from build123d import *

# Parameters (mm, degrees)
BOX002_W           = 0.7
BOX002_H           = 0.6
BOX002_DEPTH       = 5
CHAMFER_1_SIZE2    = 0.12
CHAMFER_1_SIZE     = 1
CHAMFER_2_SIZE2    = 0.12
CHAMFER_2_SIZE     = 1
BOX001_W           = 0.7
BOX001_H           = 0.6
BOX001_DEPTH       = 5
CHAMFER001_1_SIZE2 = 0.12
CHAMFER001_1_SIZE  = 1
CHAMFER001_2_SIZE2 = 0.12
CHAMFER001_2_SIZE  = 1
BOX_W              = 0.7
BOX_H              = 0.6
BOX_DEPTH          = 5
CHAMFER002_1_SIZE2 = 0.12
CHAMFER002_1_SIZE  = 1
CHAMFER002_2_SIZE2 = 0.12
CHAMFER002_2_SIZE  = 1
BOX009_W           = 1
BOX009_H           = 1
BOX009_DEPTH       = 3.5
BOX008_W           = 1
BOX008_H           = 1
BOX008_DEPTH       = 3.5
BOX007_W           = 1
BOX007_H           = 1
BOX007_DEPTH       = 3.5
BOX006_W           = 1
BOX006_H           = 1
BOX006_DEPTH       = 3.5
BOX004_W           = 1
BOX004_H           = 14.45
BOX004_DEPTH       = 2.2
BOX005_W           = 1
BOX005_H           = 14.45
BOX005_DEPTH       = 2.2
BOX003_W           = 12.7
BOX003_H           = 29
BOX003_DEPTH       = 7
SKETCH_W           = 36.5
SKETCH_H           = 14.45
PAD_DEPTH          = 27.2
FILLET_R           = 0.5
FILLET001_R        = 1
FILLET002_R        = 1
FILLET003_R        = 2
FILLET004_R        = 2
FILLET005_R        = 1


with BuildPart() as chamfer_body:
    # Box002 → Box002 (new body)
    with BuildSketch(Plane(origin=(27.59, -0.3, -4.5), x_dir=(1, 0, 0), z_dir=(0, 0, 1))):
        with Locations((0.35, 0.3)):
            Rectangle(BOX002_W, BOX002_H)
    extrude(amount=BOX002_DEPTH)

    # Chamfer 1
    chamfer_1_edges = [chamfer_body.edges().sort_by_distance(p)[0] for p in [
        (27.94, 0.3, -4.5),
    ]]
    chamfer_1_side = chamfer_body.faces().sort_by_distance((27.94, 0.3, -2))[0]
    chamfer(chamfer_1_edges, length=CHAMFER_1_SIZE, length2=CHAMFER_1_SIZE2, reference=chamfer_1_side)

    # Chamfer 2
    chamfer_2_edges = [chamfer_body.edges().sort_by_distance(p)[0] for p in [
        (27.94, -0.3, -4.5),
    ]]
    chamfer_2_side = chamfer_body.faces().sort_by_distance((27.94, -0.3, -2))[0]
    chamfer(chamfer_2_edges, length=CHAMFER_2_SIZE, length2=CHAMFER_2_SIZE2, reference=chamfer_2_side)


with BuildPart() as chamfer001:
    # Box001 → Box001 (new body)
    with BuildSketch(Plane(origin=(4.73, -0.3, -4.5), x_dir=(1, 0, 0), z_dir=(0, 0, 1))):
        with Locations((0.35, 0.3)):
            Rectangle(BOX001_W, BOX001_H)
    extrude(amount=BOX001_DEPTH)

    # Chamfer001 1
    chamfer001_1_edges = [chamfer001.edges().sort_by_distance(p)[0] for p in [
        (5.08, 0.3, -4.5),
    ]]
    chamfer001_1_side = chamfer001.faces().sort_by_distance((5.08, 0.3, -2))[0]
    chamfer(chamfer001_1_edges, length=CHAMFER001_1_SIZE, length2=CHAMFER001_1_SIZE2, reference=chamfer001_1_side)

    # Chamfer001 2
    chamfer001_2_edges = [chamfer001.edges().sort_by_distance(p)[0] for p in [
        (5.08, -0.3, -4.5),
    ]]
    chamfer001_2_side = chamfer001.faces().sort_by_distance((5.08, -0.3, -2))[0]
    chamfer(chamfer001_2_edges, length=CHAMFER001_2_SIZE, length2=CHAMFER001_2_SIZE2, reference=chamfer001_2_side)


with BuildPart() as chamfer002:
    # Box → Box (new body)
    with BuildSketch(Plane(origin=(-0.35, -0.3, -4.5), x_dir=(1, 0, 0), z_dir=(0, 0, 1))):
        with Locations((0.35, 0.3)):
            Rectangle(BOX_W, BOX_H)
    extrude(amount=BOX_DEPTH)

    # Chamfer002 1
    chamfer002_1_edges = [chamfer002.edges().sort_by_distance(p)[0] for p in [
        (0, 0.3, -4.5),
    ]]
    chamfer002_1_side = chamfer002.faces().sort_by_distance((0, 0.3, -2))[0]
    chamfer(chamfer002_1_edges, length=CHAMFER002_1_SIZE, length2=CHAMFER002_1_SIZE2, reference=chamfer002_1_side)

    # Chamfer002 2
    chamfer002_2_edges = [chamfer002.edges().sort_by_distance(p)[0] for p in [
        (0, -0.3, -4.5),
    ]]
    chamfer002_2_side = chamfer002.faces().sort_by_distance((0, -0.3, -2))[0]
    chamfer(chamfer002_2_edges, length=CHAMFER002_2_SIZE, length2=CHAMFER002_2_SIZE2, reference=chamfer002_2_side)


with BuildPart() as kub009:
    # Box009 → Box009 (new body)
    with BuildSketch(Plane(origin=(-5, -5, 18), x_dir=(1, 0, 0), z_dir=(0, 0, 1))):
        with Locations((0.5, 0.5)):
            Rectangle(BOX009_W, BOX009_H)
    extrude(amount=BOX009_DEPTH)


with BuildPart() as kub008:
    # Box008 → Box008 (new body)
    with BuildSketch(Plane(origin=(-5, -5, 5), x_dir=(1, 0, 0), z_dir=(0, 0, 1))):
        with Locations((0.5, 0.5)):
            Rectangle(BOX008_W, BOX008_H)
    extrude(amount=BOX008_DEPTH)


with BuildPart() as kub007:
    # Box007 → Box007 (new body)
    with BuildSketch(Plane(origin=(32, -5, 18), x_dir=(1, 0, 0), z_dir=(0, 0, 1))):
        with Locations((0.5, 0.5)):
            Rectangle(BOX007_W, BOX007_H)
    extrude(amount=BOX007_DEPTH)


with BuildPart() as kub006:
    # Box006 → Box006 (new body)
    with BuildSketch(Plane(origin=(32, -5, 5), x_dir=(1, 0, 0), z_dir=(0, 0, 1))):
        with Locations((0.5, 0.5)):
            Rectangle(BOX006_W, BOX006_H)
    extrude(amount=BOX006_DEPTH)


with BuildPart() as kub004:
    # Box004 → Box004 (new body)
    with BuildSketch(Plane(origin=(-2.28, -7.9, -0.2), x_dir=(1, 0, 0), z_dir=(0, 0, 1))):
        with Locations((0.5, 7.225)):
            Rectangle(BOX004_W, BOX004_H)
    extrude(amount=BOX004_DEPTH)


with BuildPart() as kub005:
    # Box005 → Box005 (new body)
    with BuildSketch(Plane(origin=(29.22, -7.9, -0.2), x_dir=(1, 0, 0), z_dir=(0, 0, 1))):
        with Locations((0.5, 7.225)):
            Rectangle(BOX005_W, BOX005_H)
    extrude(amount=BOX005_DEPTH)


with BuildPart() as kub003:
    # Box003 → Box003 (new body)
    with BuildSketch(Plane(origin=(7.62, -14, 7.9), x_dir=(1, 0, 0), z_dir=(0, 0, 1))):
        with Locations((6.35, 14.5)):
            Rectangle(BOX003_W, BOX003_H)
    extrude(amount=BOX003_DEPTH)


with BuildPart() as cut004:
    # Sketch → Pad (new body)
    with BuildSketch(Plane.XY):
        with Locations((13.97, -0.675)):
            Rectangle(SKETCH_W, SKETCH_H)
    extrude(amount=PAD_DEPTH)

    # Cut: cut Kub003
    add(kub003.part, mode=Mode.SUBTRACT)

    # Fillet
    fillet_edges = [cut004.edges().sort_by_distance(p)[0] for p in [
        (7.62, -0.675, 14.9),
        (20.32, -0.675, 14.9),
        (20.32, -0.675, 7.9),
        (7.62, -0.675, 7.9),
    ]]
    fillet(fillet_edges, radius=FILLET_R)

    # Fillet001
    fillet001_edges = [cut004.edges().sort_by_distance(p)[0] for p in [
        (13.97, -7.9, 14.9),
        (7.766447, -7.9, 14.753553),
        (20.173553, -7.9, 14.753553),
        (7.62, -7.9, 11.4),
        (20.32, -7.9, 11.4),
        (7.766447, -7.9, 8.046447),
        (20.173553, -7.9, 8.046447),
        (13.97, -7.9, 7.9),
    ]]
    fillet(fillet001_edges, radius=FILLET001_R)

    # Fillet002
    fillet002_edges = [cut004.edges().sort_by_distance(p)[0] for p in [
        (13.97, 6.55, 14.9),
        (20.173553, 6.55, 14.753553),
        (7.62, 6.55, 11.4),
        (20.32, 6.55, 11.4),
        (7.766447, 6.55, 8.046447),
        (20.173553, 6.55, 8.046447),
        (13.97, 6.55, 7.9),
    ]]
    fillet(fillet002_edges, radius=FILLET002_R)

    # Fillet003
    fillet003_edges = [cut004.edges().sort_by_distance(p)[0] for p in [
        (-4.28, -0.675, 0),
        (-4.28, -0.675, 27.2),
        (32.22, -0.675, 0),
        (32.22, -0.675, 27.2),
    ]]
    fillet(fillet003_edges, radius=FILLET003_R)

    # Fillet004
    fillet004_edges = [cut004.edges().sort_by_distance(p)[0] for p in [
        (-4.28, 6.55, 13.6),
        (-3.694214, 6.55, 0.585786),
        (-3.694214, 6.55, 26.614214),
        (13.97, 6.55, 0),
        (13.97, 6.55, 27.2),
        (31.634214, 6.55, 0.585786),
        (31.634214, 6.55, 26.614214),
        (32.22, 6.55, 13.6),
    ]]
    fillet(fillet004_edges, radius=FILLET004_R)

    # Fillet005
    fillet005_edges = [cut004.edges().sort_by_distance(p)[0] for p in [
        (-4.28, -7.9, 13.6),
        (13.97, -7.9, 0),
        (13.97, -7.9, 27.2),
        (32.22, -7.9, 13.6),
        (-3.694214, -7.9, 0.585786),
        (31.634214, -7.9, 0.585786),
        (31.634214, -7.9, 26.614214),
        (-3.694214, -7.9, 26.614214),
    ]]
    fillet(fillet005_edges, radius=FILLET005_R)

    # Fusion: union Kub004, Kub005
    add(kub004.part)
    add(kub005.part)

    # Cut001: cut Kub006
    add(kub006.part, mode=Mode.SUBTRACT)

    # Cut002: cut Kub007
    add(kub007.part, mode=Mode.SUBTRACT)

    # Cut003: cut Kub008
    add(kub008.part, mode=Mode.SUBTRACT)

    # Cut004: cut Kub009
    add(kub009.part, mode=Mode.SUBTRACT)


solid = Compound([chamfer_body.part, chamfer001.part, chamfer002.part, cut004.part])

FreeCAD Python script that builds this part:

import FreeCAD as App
import Part
import Sketcher

V = App.Vector


def edges_at(feature, points):
    """Names of the edges that pass closest to the given points."""
    edges = feature.Shape.Edges
    near = lambda p: min(range(len(edges)), key=lambda i: edges[i].distToShape(Part.Vertex(*p))[0])
    return sorted({f"Edge{near(p) + 1}" for p in points})


def add_polygon(sketch, points):
    """Adds a closed chain of lines whose ends are joined by coincident constraints."""
    first, n = sketch.GeometryCount, len(points)
    for a, b in zip(points, points[1:] + points[:1]):
        sketch.addGeometry(Part.LineSegment(App.Vector(*a, 0), App.Vector(*b, 0)), False)
    for i in range(n):
        sketch.addConstraint(Sketcher.Constraint("Coincident", first + i, 2, first + (i + 1) % n, 1))

doc = App.newDocument("Part")
params = doc.addObject("Spreadsheet::Sheet", "Params")
for row, (alias, value) in enumerate([
    ("sketch1_width", "0.7 mm"),
    ("sketch1_height", "0.6 mm"),
    ("pad1_length", "5 mm"),
    ("chamfer_size", "1 mm"),
    ("chamfer_size2", "0.12 mm"),
    ("chamfer2_size", "1 mm"),
    ("chamfer2_size2", "0.12 mm"),
    ("sketch2_width", "0.7 mm"),
    ("sketch2_height", "0.6 mm"),
    ("pad2_length", "5 mm"),
    ("chamfer3_size", "1 mm"),
    ("chamfer3_size2", "0.12 mm"),
    ("chamfer4_size", "1 mm"),
    ("chamfer4_size2", "0.12 mm"),
    ("sketch3_width", "0.7 mm"),
    ("sketch3_height", "0.6 mm"),
    ("pad3_length", "5 mm"),
    ("chamfer5_size", "1 mm"),
    ("chamfer5_size2", "0.12 mm"),
    ("chamfer6_size", "1 mm"),
    ("chamfer6_size2", "0.12 mm"),
    ("sketch4_width", "1 mm"),
    ("pad4_length", "3.5 mm"),
    ("sketch5_width", "1 mm"),
    ("pad5_length", "3.5 mm"),
    ("sketch6_width", "1 mm"),
    ("pad6_length", "3.5 mm"),
    ("sketch7_width", "1 mm"),
    ("pad7_length", "3.5 mm"),
    ("sketch8_width", "1 mm"),
    ("sketch8_height", "14.45 mm"),
    ("pad8_length", "2.2 mm"),
    ("sketch9_width", "1 mm"),
    ("sketch9_height", "14.45 mm"),
    ("pad9_length", "2.2 mm"),
    ("sketch10_height", "29 mm"),
    ("sketch10_width", "12.7 mm"),
    ("pad10_length", "7 mm"),
    ("sketch11_width", "36.5 mm"),
    ("sketch11_height", "14.45 mm"),
    ("pad11_length", "27.2 mm"),
    ("fillet_radius", "0.5 mm"),
    ("fillet2_radius", "1 mm"),
    ("fillet3_radius", "1 mm"),
    ("fillet4_radius", "2 mm"),
    ("fillet5_radius", "2 mm"),
    ("fillet6_radius", "1 mm"),
], start=1):
    params.set(f"A{row}", alias)
    params.set(f"B{row}", "=" + value)
    params.setAlias(f"B{row}", alias)

body = doc.addObject("PartDesign::Body", "Body")

# Sketch on XY plane
sketch1 = doc.addObject("Sketcher::SketchObject", "Sketch")
body.addObject(sketch1)
sketch1.AttachmentSupport = (doc.XY_Plane, [""])
sketch1.MapMode = "FlatFace"
sketch1.AttachmentOffset = App.Placement(V(0, 0, -4.5), App.Rotation())
add_polygon(sketch1, [(27.59, 0.3), (27.59, -0.3), (28.29, -0.3), (28.29, 0.3)])  # lines 0-3
sketch1.addConstraint([
    Sketcher.Constraint("Vertical", 0),
    Sketcher.Constraint("Horizontal", 1),
    Sketcher.Constraint("Vertical", 2),
    Sketcher.Constraint("Horizontal", 3),
    Sketcher.Constraint("DistanceX", 1, 1, 1, 2, 0.7),
    Sketcher.Constraint("DistanceY", 0, 2, 0, 1, 0.6),
    Sketcher.Constraint("DistanceY", 0, 2, -1, 1, 0.3),
    Sketcher.Constraint("DistanceX", -1, 1, 0, 2, 27.59),
])
sketch1.setExpression("Constraints[8]", "Params.sketch1_width")
sketch1.setExpression("Constraints[9]", "Params.sketch1_height")
pad1 = doc.addObject("PartDesign::Pad", "Pad")
body.addObject(pad1)
pad1.Profile = sketch1
pad1.setExpression("Length", "Params.pad1_length")
doc.recompute()

chamfer = doc.addObject("PartDesign::Chamfer", "Chamfer")
body.addObject(chamfer)
chamfer.Base = (pad1, edges_at(pad1, [(27.94, 0.3, -4.5)]))
chamfer.ChamferType = "Two distances"
chamfer.setExpression("Size", "Params.chamfer_size")
chamfer.setExpression("Size2", "Params.chamfer_size2")
doc.recompute()

chamfer2 = doc.addObject("PartDesign::Chamfer", "Chamfer001")
body.addObject(chamfer2)
chamfer2.Base = (chamfer, edges_at(chamfer, [(27.94, -0.3, -4.5)]))
chamfer2.ChamferType = "Two distances"
chamfer2.setExpression("Size", "Params.chamfer2_size")
chamfer2.setExpression("Size2", "Params.chamfer2_size2")
chamfer2.FlipDirection = True
body2 = doc.addObject("PartDesign::Body", "Body001")

# Sketch on XY plane
sketch2 = doc.addObject("Sketcher::SketchObject", "Sketch001")
body2.addObject(sketch2)
sketch2.AttachmentSupport = (doc.getObject("XY_Plane001"), [""])
sketch2.MapMode = "FlatFace"
sketch2.AttachmentOffset = App.Placement(V(0, 0, -4.5), App.Rotation())
add_polygon(sketch2, [(4.73, 0.3), (4.73, -0.3), (5.43, -0.3), (5.43, 0.3)])  # lines 0-3
sketch2.addConstraint([
    Sketcher.Constraint("Vertical", 0),
    Sketcher.Constraint("Horizontal", 1),
    Sketcher.Constraint("Vertical", 2),
    Sketcher.Constraint("Horizontal", 3),
    Sketcher.Constraint("DistanceX", 1, 1, 1, 2, 0.7),
    Sketcher.Constraint("DistanceY", 0, 2, 0, 1, 0.6),
    Sketcher.Constraint("DistanceY", 0, 2, -1, 1, 0.3),
    Sketcher.Constraint("DistanceX", -1, 1, 0, 2, 4.73),
])
sketch2.setExpression("Constraints[8]", "Params.sketch2_width")
sketch2.setExpression("Constraints[9]", "Params.sketch2_height")
pad2 = doc.addObject("PartDesign::Pad", "Pad001")
body2.addObject(pad2)
pad2.Profile = sketch2
pad2.setExpression("Length", "Params.pad2_length")
doc.recompute()

chamfer3 = doc.addObject("PartDesign::Chamfer", "Chamfer002")
body2.addObject(chamfer3)
chamfer3.Base = (pad2, edges_at(pad2, [(5.08, 0.3, -4.5)]))
chamfer3.ChamferType = "Two distances"
chamfer3.setExpression("Size", "Params.chamfer3_size")
chamfer3.setExpression("Size2", "Params.chamfer3_size2")
doc.recompute()

chamfer4 = doc.addObject("PartDesign::Chamfer", "Chamfer003")
body2.addObject(chamfer4)
chamfer4.Base = (chamfer3, edges_at(chamfer3, [(5.08, -0.3, -4.5)]))
chamfer4.ChamferType = "Two distances"
chamfer4.setExpression("Size", "Params.chamfer4_size")
chamfer4.setExpression("Size2", "Params.chamfer4_size2")
chamfer4.FlipDirection = True
body3 = doc.addObject("PartDesign::Body", "Body002")

# Sketch on XY plane
sketch3 = doc.addObject("Sketcher::SketchObject", "Sketch002")
body3.addObject(sketch3)
sketch3.AttachmentSupport = (doc.getObject("XY_Plane002"), [""])
sketch3.MapMode = "FlatFace"
sketch3.AttachmentOffset = App.Placement(V(0, 0, -4.5), App.Rotation())
add_polygon(sketch3, [(-0.35, 0.3), (-0.35, -0.3), (0.35, -0.3), (0.35, 0.3)])  # lines 0-3
sketch3.addConstraint([
    Sketcher.Constraint("Vertical", 0),
    Sketcher.Constraint("Horizontal", 1),
    Sketcher.Constraint("Vertical", 2),
    Sketcher.Constraint("Horizontal", 3),
    Sketcher.Constraint("Symmetric", 0, 2, 2, 2, -1, 1),
    Sketcher.Constraint("DistanceX", 1, 1, 1, 2, 0.7),
    Sketcher.Constraint("DistanceY", 0, 2, 0, 1, 0.6),
])
sketch3.setExpression("Constraints[9]", "Params.sketch3_width")
sketch3.setExpression("Constraints[10]", "Params.sketch3_height")
pad3 = doc.addObject("PartDesign::Pad", "Pad002")
body3.addObject(pad3)
pad3.Profile = sketch3
pad3.setExpression("Length", "Params.pad3_length")
doc.recompute()

chamfer5 = doc.addObject("PartDesign::Chamfer", "Chamfer004")
body3.addObject(chamfer5)
chamfer5.Base = (pad3, edges_at(pad3, [(0, 0.3, -4.5)]))
chamfer5.ChamferType = "Two distances"
chamfer5.setExpression("Size", "Params.chamfer5_size")
chamfer5.setExpression("Size2", "Params.chamfer5_size2")
doc.recompute()

chamfer6 = doc.addObject("PartDesign::Chamfer", "Chamfer005")
body3.addObject(chamfer6)
chamfer6.Base = (chamfer5, edges_at(chamfer5, [(0, -0.3, -4.5)]))
chamfer6.ChamferType = "Two distances"
chamfer6.setExpression("Size", "Params.chamfer6_size")
chamfer6.setExpression("Size2", "Params.chamfer6_size2")
chamfer6.FlipDirection = True
body4 = doc.addObject("PartDesign::Body", "Body003")

# Sketch on XY plane
sketch4 = doc.addObject("Sketcher::SketchObject", "Sketch003")
body4.addObject(sketch4)
sketch4.AttachmentSupport = (doc.getObject("XY_Plane003"), [""])
sketch4.MapMode = "FlatFace"
sketch4.AttachmentOffset = App.Placement(V(0, 0, 18), App.Rotation())
add_polygon(sketch4, [(-5, -4), (-5, -5), (-4, -5), (-4, -4)])  # lines 0-3
sketch4.addConstraint([
    Sketcher.Constraint("Vertical", 0),
    Sketcher.Constraint("Horizontal", 1),
    Sketcher.Constraint("Vertical", 2),
    Sketcher.Constraint("Horizontal", 3),
    Sketcher.Constraint("Equal", 3, 0),
    Sketcher.Constraint("DistanceX", 1, 1, 1, 2, 1.0),
    Sketcher.Constraint("DistanceX", 0, 2, -1, 1, 5.0),
    Sketcher.Constraint("DistanceY", 0, 2, -1, 1, 5.0),
])
sketch4.setExpression("Constraints[9]", "Params.sketch4_width")
pad4 = doc.addObject("PartDesign::Pad", "Pad003")
body4.addObject(pad4)
pad4.Profile = sketch4
pad4.setExpression("Length", "Params.pad4_length")
body5 = doc.addObject("PartDesign::Body", "Body004")

# Sketch on XY plane
sketch5 = doc.addObject("Sketcher::SketchObject", "Sketch004")
body5.addObject(sketch5)
sketch5.AttachmentSupport = (doc.getObject("XY_Plane004"), [""])
sketch5.MapMode = "FlatFace"
sketch5.AttachmentOffset = App.Placement(V(0, 0, 5), App.Rotation())
add_polygon(sketch5, [(-5, -4), (-5, -5), (-4, -5), (-4, -4)])  # lines 0-3
sketch5.addConstraint([
    Sketcher.Constraint("Vertical", 0),
    Sketcher.Constraint("Horizontal", 1),
    Sketcher.Constraint("Vertical", 2),
    Sketcher.Constraint("Horizontal", 3),
    Sketcher.Constraint("Equal", 3, 0),
    Sketcher.Constraint("DistanceX", 1, 1, 1, 2, 1.0),
    Sketcher.Constraint("DistanceX", 0, 2, -1, 1, 5.0),
    Sketcher.Constraint("DistanceY", 0, 2, -1, 1, 5.0),
])
sketch5.setExpression("Constraints[9]", "Params.sketch5_width")
pad5 = doc.addObject("PartDesign::Pad", "Pad004")
body5.addObject(pad5)
pad5.Profile = sketch5
pad5.setExpression("Length", "Params.pad5_length")
body6 = doc.addObject("PartDesign::Body", "Body005")

# Sketch on XY plane
sketch6 = doc.addObject("Sketcher::SketchObject", "Sketch005")
body6.addObject(sketch6)
sketch6.AttachmentSupport = (doc.getObject("XY_Plane005"), [""])
sketch6.MapMode = "FlatFace"
sketch6.AttachmentOffset = App.Placement(V(0, 0, 18), App.Rotation())
add_polygon(sketch6, [(32, -4), (32, -5), (33, -5), (33, -4)])  # lines 0-3
sketch6.addConstraint([
    Sketcher.Constraint("Vertical", 0),
    Sketcher.Constraint("Horizontal", 1),
    Sketcher.Constraint("Vertical", 2),
    Sketcher.Constraint("Horizontal", 3),
    Sketcher.Constraint("Equal", 3, 0),
    Sketcher.Constraint("DistanceX", 1, 1, 1, 2, 1.0),
    Sketcher.Constraint("DistanceX", -1, 1, 0, 2, 32.0),
    Sketcher.Constraint("DistanceY", 0, 2, -1, 1, 5.0),
])
sketch6.setExpression("Constraints[9]", "Params.sketch6_width")
pad6 = doc.addObject("PartDesign::Pad", "Pad005")
body6.addObject(pad6)
pad6.Profile = sketch6
pad6.setExpression("Length", "Params.pad6_length")
body7 = doc.addObject("PartDesign::Body", "Body006")

# Sketch on XY plane
sketch7 = doc.addObject("Sketcher::SketchObject", "Sketch006")
body7.addObject(sketch7)
sketch7.AttachmentSupport = (doc.getObject("XY_Plane006"), [""])
sketch7.MapMode = "FlatFace"
sketch7.AttachmentOffset = App.Placement(V(0, 0, 5), App.Rotation())
add_polygon(sketch7, [(32, -4), (32, -5), (33, -5), (33, -4)])  # lines 0-3
sketch7.addConstraint([
    Sketcher.Constraint("Vertical", 0),
    Sketcher.Constraint("Horizontal", 1),
    Sketcher.Constraint("Vertical", 2),
    Sketcher.Constraint("Horizontal", 3),
    Sketcher.Constraint("Equal", 3, 0),
    Sketcher.Constraint("DistanceX", 1, 1, 1, 2, 1.0),
    Sketcher.Constraint("DistanceX", -1, 1, 0, 2, 32.0),
    Sketcher.Constraint("DistanceY", 0, 2, -1, 1, 5.0),
])
sketch7.setExpression("Constraints[9]", "Params.sketch7_width")
pad7 = doc.addObject("PartDesign::Pad", "Pad006")
body7.addObject(pad7)
pad7.Profile = sketch7
pad7.setExpression("Length", "Params.pad7_length")
body8 = doc.addObject("PartDesign::Body", "Body007")

# Sketch on XY plane
sketch8 = doc.addObject("Sketcher::SketchObject", "Sketch007")
body8.addObject(sketch8)
sketch8.AttachmentSupport = (doc.getObject("XY_Plane007"), [""])
sketch8.MapMode = "FlatFace"
sketch8.AttachmentOffset = App.Placement(V(0, 0, -0.2), App.Rotation())
add_polygon(sketch8, [(-2.28, 6.55), (-2.28, -7.9), (-1.28, -7.9), (-1.28, 6.55)])  # lines 0-3
sketch8.addConstraint([
    Sketcher.Constraint("Vertical", 0),
    Sketcher.Constraint("Horizontal", 1),
    Sketcher.Constraint("Vertical", 2),
    Sketcher.Constraint("Horizontal", 3),
    Sketcher.Constraint("DistanceX", 1, 1, 1, 2, 1.0),
    Sketcher.Constraint("DistanceY", 0, 2, 0, 1, 14.45),
    Sketcher.Constraint("DistanceY", 0, 2, -1, 1, 7.9),
    Sketcher.Constraint("DistanceX", 0, 2, -1, 1, 2.28),
])
sketch8.setExpression("Constraints[8]", "Params.sketch8_width")
sketch8.setExpression("Constraints[9]", "Params.sketch8_height")
pad8 = doc.addObject("PartDesign::Pad", "Pad007")
body8.addObject(pad8)
pad8.Profile = sketch8
pad8.setExpression("Length", "Params.pad8_length")
body9 = doc.addObject("PartDesign::Body", "Body008")

# Sketch on XY plane
sketch9 = doc.addObject("Sketcher::SketchObject", "Sketch008")
body9.addObject(sketch9)
sketch9.AttachmentSupport = (doc.getObject("XY_Plane008"), [""])
sketch9.MapMode = "FlatFace"
sketch9.AttachmentOffset = App.Placement(V(0, 0, -0.2), App.Rotation())
add_polygon(sketch9, [(29.22, 6.55), (29.22, -7.9), (30.22, -7.9), (30.22, 6.55)])  # lines 0-3
sketch9.addConstraint([
    Sketcher.Constraint("Vertical", 0),
    Sketcher.Constraint("Horizontal", 1),
    Sketcher.Constraint("Vertical", 2),
    Sketcher.Constraint("Horizontal", 3),
    Sketcher.Constraint("DistanceX", 1, 1, 1, 2, 1.0),
    Sketcher.Constraint("DistanceY", 0, 2, 0, 1, 14.45),
    Sketcher.Constraint("DistanceY", 0, 2, -1, 1, 7.9),
    Sketcher.Constraint("DistanceX", -1, 1, 0, 2, 29.22),
])
sketch9.setExpression("Constraints[8]", "Params.sketch9_width")
sketch9.setExpression("Constraints[9]", "Params.sketch9_height")
pad9 = doc.addObject("PartDesign::Pad", "Pad008")
body9.addObject(pad9)
pad9.Profile = sketch9
pad9.setExpression("Length", "Params.pad9_length")
body10 = doc.addObject("PartDesign::Body", "Body009")

# Sketch on XY plane
sketch10 = doc.addObject("Sketcher::SketchObject", "Sketch009")
body10.addObject(sketch10)
sketch10.AttachmentSupport = (doc.getObject("XY_Plane009"), [""])
sketch10.MapMode = "FlatFace"
sketch10.AttachmentOffset = App.Placement(V(0, 0, 7.9), App.Rotation())
add_polygon(sketch10, [(7.62, 15), (7.62, -14), (20.32, -14), (20.32, 15)])  # lines 0-3
sketch10.addConstraint([
    Sketcher.Constraint("Vertical", 0),
    Sketcher.Constraint("Horizontal", 1),
    Sketcher.Constraint("Vertical", 2),
    Sketcher.Constraint("Horizontal", 3),
    Sketcher.Constraint("DistanceY", 0, 2, 0, 1, 29.0),
    Sketcher.Constraint("DistanceX", 1, 1, 1, 2, 12.7),
    Sketcher.Constraint("DistanceY", 0, 2, -1, 1, 14.0),
    Sketcher.Constraint("DistanceX", -1, 1, 0, 2, 7.62),
])
sketch10.setExpression("Constraints[8]", "Params.sketch10_height")
sketch10.setExpression("Constraints[9]", "Params.sketch10_width")
pad10 = doc.addObject("PartDesign::Pad", "Pad009")
body10.addObject(pad10)
pad10.Profile = sketch10
pad10.setExpression("Length", "Params.pad10_length")
body11 = doc.addObject("PartDesign::Body", "Body010")

# Sketch on XY plane
sketch11 = doc.addObject("Sketcher::SketchObject", "Sketch010")
body11.addObject(sketch11)
sketch11.AttachmentSupport = (doc.getObject("XY_Plane010"), [""])
sketch11.MapMode = "FlatFace"
add_polygon(sketch11, [(-4.28, 6.55), (-4.28, -7.9), (32.22, -7.9), (32.22, 6.55)])  # lines 0-3
sketch11.addConstraint([
    Sketcher.Constraint("Vertical", 0),
    Sketcher.Constraint("Horizontal", 1),
    Sketcher.Constraint("Vertical", 2),
    Sketcher.Constraint("Horizontal", 3),
    Sketcher.Constraint("DistanceX", 1, 1, 1, 2, 36.5),
    Sketcher.Constraint("DistanceY", 0, 2, 0, 1, 14.45),
    Sketcher.Constraint("DistanceY", 0, 2, -1, 1, 7.9),
    Sketcher.Constraint("DistanceX", 0, 2, -1, 1, 4.28),
])
sketch11.setExpression("Constraints[8]", "Params.sketch11_width")
sketch11.setExpression("Constraints[9]", "Params.sketch11_height")
pad11 = doc.addObject("PartDesign::Pad", "Pad010")
body11.addObject(pad11)
pad11.Profile = sketch11
pad11.setExpression("Length", "Params.pad11_length")
doc.recompute()

boolean = doc.addObject("PartDesign::Boolean", "Boolean")
body11.addObject(boolean)
boolean.Type = "Cut"
boolean.addObjects([body10])
doc.recompute()

fillet = doc.addObject("PartDesign::Fillet", "Fillet")
body11.addObject(fillet)
fillet.Base = (boolean, edges_at(boolean, [
    (7.62, -0.675, 14.9),
    (20.32, -0.675, 14.9),
    (20.32, -0.675, 7.9),
    (7.62, -0.675, 7.9),
]))
fillet.setExpression("Radius", "Params.fillet_radius")
doc.recompute()

fillet2 = doc.addObject("PartDesign::Fillet", "Fillet001")
body11.addObject(fillet2)
fillet2.Base = (fillet, edges_at(fillet, [
    (13.97, -7.9, 14.9),
    (7.766, -7.9, 14.754),
    (20.174, -7.9, 14.754),
    (7.62, -7.9, 11.4),
    (20.32, -7.9, 11.4),
    (7.766, -7.9, 8.046),
    (20.174, -7.9, 8.046),
    (13.97, -7.9, 7.9),
]))
fillet2.setExpression("Radius", "Params.fillet2_radius")
doc.recompute()

fillet3 = doc.addObject("PartDesign::Fillet", "Fillet002")
body11.addObject(fillet3)
fillet3.Base = (fillet2, edges_at(fillet2, [
    (13.97, 6.55, 14.9),
    (20.174, 6.55, 14.754),
    (7.62, 6.55, 11.4),
    (20.32, 6.55, 11.4),
    (7.766, 6.55, 8.046),
    (20.174, 6.55, 8.046),
    (13.97, 6.55, 7.9),
]))
fillet3.setExpression("Radius", "Params.fillet3_radius")
doc.recompute()

fillet4 = doc.addObject("PartDesign::Fillet", "Fillet003")
body11.addObject(fillet4)
fillet4.Base = (fillet3, edges_at(fillet3, [
    (-4.28, -0.675, 0),
    (-4.28, -0.675, 27.2),
    (32.22, -0.675, 0),
    (32.22, -0.675, 27.2),
]))
fillet4.setExpression("Radius", "Params.fillet4_radius")
doc.recompute()

fillet5 = doc.addObject("PartDesign::Fillet", "Fillet004")
body11.addObject(fillet5)
fillet5.Base = (fillet4, edges_at(fillet4, [
    (-4.28, 6.55, 13.6),
    (-3.694, 6.55, 0.586),
    (-3.694, 6.55, 26.614),
    (13.97, 6.55, 0),
    (13.97, 6.55, 27.2),
    (31.634, 6.55, 0.586),
    (31.634, 6.55, 26.614),
    (32.22, 6.55, 13.6),
]))
fillet5.setExpression("Radius", "Params.fillet5_radius")
doc.recompute()

fillet6 = doc.addObject("PartDesign::Fillet", "Fillet005")
body11.addObject(fillet6)
fillet6.Base = (fillet5, edges_at(fillet5, [
    (-4.28, -7.9, 13.6),
    (13.97, -7.9, 0),
    (13.97, -7.9, 27.2),
    (32.22, -7.9, 13.6),
    (-3.694, -7.9, 0.586),
    (31.634, -7.9, 0.586),
    (31.634, -7.9, 26.614),
    (-3.694, -7.9, 26.614),
]))
fillet6.setExpression("Radius", "Params.fillet6_radius")
doc.recompute()

boolean2 = doc.addObject("PartDesign::Boolean", "Boolean001")
body11.addObject(boolean2)
boolean2.Type = "Fuse"
boolean2.addObjects([body8])
doc.recompute()

boolean3 = doc.addObject("PartDesign::Boolean", "Boolean002")
body11.addObject(boolean3)
boolean3.Type = "Fuse"
boolean3.addObjects([body9])
doc.recompute()

boolean4 = doc.addObject("PartDesign::Boolean", "Boolean003")
body11.addObject(boolean4)
boolean4.Type = "Cut"
boolean4.addObjects([body7])
doc.recompute()

boolean5 = doc.addObject("PartDesign::Boolean", "Boolean004")
body11.addObject(boolean5)
boolean5.Type = "Cut"
boolean5.addObjects([body6])
doc.recompute()

boolean6 = doc.addObject("PartDesign::Boolean", "Boolean005")
body11.addObject(boolean6)
boolean6.Type = "Cut"
boolean6.addObjects([body5])
doc.recompute()

boolean7 = doc.addObject("PartDesign::Boolean", "Boolean006")
body11.addObject(boolean7)
boolean7.Type = "Cut"
boolean7.addObjects([body4])

doc.recompute()
